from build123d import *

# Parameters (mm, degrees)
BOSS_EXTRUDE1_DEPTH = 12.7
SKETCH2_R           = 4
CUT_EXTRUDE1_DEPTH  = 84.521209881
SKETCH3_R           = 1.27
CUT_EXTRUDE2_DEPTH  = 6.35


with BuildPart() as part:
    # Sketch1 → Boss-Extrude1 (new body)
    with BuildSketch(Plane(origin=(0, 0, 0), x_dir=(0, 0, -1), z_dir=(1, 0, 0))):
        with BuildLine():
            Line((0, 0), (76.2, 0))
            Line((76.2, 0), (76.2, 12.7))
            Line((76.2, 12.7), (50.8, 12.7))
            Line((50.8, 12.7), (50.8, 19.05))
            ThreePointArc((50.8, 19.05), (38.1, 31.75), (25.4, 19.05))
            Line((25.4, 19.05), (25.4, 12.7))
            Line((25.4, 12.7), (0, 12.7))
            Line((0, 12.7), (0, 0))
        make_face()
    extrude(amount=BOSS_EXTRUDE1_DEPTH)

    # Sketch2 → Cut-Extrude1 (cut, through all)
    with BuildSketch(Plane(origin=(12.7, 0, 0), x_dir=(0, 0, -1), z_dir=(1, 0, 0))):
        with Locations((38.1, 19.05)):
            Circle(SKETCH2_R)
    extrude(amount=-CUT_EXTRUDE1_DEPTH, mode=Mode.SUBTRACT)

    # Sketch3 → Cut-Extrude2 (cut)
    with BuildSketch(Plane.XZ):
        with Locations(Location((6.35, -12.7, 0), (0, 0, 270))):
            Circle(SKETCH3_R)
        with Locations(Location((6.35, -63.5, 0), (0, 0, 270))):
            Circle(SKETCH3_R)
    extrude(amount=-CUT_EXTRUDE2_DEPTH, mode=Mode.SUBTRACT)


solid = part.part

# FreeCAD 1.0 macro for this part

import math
import FreeCAD as App
import Part
import Sketcher
Q = App.Units.Quantity

doc = App.newDocument("Part")
params = doc.addObject("Spreadsheet::Sheet", "Params")
for row, (alias, value) in enumerate([
    ("sketch1_radius", "0.5 in"),
    ("sketch1_height", "3 in"),
    ("sketch1_width", "0.5 in"),
    ("sketch1_width2", "0.25 in"),
    ("pad1_length", "0.5 in"),
    ("sketch3_diameter", "0.1 in"),
    ("pocket2_length", "0.25 in"),
], start=1):
    params.set(f"A{row}", alias)
    params.set(f"B{row}", "=" + value)
    params.setAlias(f"B{row}", alias)

body = doc.addObject("PartDesign::Body", "Body")

sketch1 = body.newObject("Sketcher::SketchObject", "Sketch")
sketch1.AttachmentSupport = (doc.getObject("YZ_Plane"), [""])
sketch1.MapMode = "FlatFace"
sketch1.addGeometry([
    Part.LineSegment(App.Vector(0, 0, 0), App.Vector(0, -76.2, 0)),
    Part.LineSegment(App.Vector(0, -76.2, 0), App.Vector(12.7, -76.2, 0)),
    Part.LineSegment(App.Vector(12.7, -76.2, 0), App.Vector(12.7, -50.8, 0)),
    Part.LineSegment(App.Vector(12.7, -50.8, 0), App.Vector(19.05, -50.8, 0)),
    Part.ArcOfCircle(Part.Circle(App.Vector(19.05, -38.1, 0), App.Vector(0, 0, 1), 12.7), math.radians(-90), math.radians(90)),
    Part.LineSegment(App.Vector(19.05, -25.4, 0), App.Vector(12.7, -25.4, 0)),
    Part.LineSegment(App.Vector(12.7, -25.4, 0), App.Vector(12.7, 0, 0)),
    Part.LineSegment(App.Vector(12.7, 0, 0), App.Vector(0, 0, 0)),
], False)
sketch1.addConstraint([
    Sketcher.Constraint("Coincident", 0, 2, 1, 1),
    Sketcher.Constraint("Coincident", 1, 2, 2, 1),
    Sketcher.Constraint("Coincident", 2, 2, 3, 1),
    Sketcher.Constraint("Tangent", 3, 2, 4, 1),
    Sketcher.Constraint("Tangent", 4, 2, 5, 1),
    Sketcher.Constraint("Coincident", 5, 2, 6, 1),
    Sketcher.Constraint("Coincident", 6, 2, 7, 1),
    Sketcher.Constraint("Coincident", 7, 2, 0, 1),
    Sketcher.Constraint("Vertical", 0),
    Sketcher.Constraint("Horizontal", 1),
    Sketcher.Constraint("Vertical", 2),
    Sketcher.Constraint("Horizontal", 3),
    Sketcher.Constraint("Horizontal", 5),
    Sketcher.Constraint("Vertical", 6),
    Sketcher.Constraint("Horizontal", 7),
    Sketcher.Constraint("Coincident", 7, 2, -1, 1),
    Sketcher.Constraint("Vertical", 2, 2, 5, 2),
    Sketcher.Constraint("Equal", 2, 6),
    Sketcher.Constraint("Radius", 4, Q("0.5 in")),
    Sketcher.Constraint("DistanceY", 0, 2, 0, 1, Q("3 in")),
    Sketcher.Constraint("DistanceX", 1, 1, 1, 2, Q("0.5 in")),
    Sketcher.Constraint("DistanceX", 3, 1, 3, 2, Q("0.25 in")),
])
sketch1.setExpression("Constraints[18]", "Params.sketch1_radius")
sketch1.setExpression("Constraints[19]", "Params.sketch1_height")
sketch1.setExpression("Constraints[20]", "Params.sketch1_width")
sketch1.setExpression("Constraints[21]", "Params.sketch1_width2")
pad1 = body.newObject("PartDesign::Pad", "Pad")
pad1.Profile = sketch1
pad1.setExpression("Length", "Params.pad1_length")

sketch2 = body.newObject("Sketcher::SketchObject", "Sketch001")
sketch2.AttachmentSupport = (doc.getObject("YZ_Plane"), [""])
sketch2.MapMode = "FlatFace"
sketch2.AttachmentOffset = App.Placement(App.Vector(0, 0, 0.5 * 25.4), App.Rotation())
sketch2.addGeometry(Part.Circle(App.Vector(19.05, -38.1, 0), App.Vector(0, 0, 1), 4), False)
sketch2.addConstraint([
    Sketcher.Constraint("DistanceY", 0, 3, -1, 1, Q("1.5 in")),
    Sketcher.Constraint("Diameter", 0, Q("8 mm")),
    Sketcher.Constraint("DistanceX", -1, 1, 0, 3, Q("0.75 in")),
])
pocket1 = body.newObject("PartDesign::Pocket", "Pocket")
pocket1.Profile = sketch2
pocket1.Type = "ThroughAll"

sketch3 = body.newObject("Sketcher::SketchObject", "Sketch002")
sketch3.AttachmentSupport = (doc.getObject("XZ_Plane"), [""])
sketch3.MapMode = "FlatFace"
sketch3.addGeometry([
    Part.Circle(App.Vector(6.35, -12.7, 0), App.Vector(0, 0, 1), 1.27),
    Part.Circle(App.Vector(6.35, -63.5, 0), App.Vector(0, 0, 1), 1.27),
], False)
sketch3.addConstraint([
    Sketcher.Constraint("Equal", 0, 1),
    Sketcher.Constraint("Vertical", 0, 3, 1, 3),
    Sketcher.Constraint("Diameter", 0, Q("0.1 in")),
    Sketcher.Constraint("DistanceY", 1, 3, 0, 3, Q("2 in")),
    Sketcher.Constraint("DistanceY", 0, 3, -1, 1, Q("0.5 in")),
    Sketcher.Constraint("DistanceX", -1, 1, 0, 3, Q("0.25 in")),
])
sketch3.setExpression("Constraints[2]", "Params.sketch3_diameter")
pocket2 = body.newObject("PartDesign::Pocket", "Pocket001")
pocket2.Profile = sketch3
pocket2.setExpression("Length", "Params.pocket2_length")

doc.recompute()
